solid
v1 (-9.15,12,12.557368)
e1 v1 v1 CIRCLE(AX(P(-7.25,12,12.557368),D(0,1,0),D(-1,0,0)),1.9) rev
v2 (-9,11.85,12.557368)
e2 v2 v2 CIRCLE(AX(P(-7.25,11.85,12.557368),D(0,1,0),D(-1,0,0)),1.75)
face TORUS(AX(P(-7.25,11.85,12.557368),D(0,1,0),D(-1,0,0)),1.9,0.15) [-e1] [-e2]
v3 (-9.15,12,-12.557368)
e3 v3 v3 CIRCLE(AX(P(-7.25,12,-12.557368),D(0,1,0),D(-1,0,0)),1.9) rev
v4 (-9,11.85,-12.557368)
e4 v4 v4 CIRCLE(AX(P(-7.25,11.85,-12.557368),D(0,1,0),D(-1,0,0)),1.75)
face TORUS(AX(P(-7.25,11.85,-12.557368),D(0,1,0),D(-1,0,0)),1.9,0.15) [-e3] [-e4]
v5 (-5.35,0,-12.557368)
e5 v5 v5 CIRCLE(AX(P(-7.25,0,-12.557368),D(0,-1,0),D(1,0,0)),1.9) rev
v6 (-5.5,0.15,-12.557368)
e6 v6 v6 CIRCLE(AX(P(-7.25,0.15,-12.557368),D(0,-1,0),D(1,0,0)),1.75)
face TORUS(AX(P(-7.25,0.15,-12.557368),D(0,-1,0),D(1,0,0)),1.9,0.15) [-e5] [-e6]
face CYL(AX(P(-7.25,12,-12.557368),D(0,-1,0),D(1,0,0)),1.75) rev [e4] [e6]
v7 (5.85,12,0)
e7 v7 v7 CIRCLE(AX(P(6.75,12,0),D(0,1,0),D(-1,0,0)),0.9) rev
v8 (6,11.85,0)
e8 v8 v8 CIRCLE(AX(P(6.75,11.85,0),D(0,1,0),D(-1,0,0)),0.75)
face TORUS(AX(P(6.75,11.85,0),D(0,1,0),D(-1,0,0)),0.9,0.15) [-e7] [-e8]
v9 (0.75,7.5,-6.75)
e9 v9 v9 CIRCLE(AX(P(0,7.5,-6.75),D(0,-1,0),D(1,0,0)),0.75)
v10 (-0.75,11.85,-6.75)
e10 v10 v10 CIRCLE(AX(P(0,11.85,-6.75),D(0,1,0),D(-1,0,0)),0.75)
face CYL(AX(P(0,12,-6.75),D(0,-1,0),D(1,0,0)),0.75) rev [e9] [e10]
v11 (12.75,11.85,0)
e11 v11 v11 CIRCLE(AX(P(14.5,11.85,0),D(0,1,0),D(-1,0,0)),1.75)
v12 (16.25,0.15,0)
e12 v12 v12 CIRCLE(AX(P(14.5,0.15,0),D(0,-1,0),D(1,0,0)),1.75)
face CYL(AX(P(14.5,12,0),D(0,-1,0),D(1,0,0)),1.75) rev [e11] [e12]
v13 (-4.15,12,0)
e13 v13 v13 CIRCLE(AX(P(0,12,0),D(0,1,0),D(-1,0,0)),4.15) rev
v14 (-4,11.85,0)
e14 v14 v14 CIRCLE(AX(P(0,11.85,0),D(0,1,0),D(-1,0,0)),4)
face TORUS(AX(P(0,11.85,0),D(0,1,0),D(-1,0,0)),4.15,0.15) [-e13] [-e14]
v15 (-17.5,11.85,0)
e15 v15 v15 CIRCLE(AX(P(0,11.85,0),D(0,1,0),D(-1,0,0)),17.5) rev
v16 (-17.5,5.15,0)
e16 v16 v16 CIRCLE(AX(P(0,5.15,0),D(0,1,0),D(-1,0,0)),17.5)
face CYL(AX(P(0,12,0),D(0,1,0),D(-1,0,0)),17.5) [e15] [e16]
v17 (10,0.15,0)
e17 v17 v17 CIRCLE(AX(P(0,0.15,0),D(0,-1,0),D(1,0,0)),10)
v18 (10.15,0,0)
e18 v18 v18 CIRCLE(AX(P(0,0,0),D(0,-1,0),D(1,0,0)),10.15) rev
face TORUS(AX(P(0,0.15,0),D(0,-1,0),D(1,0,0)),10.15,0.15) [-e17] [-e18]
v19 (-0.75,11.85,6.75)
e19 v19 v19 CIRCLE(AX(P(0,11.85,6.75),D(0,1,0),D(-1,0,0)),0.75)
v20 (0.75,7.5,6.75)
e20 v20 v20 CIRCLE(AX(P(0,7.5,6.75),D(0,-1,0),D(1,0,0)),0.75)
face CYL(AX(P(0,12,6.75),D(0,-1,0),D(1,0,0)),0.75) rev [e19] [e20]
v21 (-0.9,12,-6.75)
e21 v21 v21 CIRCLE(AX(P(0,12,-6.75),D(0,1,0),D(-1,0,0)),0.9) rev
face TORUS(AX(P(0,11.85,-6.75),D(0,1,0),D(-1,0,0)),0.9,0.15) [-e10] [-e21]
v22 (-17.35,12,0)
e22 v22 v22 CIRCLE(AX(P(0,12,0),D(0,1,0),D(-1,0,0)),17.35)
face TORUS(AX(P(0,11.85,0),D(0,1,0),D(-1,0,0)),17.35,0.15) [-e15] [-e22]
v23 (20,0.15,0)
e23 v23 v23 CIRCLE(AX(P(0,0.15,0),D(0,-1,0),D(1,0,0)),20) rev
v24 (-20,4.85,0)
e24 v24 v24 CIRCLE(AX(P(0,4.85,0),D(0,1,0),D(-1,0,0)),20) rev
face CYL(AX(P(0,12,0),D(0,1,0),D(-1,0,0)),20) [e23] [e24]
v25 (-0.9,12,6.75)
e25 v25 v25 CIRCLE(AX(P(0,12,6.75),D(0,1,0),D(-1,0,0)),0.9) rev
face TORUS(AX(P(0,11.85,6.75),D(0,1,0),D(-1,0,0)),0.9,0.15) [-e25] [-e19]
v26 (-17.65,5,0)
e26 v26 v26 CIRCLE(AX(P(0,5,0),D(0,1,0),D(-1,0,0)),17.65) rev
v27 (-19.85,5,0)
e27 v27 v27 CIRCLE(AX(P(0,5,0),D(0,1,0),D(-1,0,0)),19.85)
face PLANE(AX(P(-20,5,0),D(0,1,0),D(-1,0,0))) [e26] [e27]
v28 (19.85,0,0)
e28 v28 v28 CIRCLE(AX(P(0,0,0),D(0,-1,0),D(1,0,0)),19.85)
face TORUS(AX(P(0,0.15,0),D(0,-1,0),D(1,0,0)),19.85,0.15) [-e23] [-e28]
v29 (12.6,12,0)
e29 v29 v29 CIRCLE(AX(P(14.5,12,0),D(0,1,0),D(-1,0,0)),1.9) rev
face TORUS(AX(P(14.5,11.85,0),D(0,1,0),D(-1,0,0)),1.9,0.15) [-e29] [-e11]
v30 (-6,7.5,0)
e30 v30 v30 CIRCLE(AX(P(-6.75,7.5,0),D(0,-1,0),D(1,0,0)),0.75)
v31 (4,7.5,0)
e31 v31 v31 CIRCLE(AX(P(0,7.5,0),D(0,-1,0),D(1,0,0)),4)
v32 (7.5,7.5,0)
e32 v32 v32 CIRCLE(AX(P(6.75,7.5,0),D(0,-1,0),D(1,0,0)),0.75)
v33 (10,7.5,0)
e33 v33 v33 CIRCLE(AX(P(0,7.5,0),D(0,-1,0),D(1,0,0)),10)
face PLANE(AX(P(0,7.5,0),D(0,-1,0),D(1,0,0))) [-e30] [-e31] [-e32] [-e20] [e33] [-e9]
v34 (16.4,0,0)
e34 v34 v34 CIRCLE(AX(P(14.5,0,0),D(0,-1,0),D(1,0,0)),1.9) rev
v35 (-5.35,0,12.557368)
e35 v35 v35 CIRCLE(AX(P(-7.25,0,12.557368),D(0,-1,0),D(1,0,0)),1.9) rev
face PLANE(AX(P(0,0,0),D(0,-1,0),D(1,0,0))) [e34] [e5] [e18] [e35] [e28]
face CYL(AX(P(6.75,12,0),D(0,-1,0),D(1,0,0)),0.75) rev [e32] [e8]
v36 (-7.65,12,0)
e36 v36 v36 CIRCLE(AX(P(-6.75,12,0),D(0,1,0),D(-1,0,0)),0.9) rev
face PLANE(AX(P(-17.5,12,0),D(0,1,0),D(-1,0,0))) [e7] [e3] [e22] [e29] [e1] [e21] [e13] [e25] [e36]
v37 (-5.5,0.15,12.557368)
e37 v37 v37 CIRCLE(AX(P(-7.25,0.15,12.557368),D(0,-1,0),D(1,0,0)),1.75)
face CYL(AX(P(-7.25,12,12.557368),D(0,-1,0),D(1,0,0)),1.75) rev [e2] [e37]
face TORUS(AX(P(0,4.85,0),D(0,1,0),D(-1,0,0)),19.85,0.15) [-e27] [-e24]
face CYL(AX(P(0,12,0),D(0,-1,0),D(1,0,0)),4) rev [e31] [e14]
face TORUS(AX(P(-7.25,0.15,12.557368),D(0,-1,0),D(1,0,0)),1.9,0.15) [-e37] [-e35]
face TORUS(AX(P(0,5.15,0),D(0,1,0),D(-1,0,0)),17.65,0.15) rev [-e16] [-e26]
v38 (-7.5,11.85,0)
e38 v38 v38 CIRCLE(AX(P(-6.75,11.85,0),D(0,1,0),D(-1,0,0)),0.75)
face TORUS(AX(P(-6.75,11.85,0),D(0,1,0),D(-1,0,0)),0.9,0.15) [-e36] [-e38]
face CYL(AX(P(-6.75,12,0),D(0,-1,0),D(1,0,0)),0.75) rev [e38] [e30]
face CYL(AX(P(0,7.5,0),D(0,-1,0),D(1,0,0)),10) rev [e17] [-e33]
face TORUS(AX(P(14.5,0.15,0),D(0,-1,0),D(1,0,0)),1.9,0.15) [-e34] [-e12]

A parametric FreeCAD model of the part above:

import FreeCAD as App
import Part
import Sketcher
Q = App.Units.Quantity


def edges_at(feature, points):
    """Names of the edges that pass closest to the given points."""
    edges = feature.Shape.Edges
    near = lambda p: min(range(len(edges)), key=lambda i: edges[i].distToShape(Part.Vertex(*p))[0])
    return sorted({f"Edge{near(p) + 1}" for p in points})

doc = App.newDocument("Part")
body = doc.addObject("PartDesign::Body", "Body")

# Sketch on XY plane
sketch1 = body.newObject("Sketcher::SketchObject", "Sketch")
sketch1.AttachmentSupport = (doc.getObject("XY_Plane"), [""])
sketch1.MapMode = "FlatFace"
sketch1.addGeometry([
    Part.LineSegment(App.Vector(-20, 0, 0), App.Vector(0, 0, 0)),  # 0
    Part.LineSegment(App.Vector(0, 0, 0), App.Vector(0, 12, 0)),  # 1
    Part.LineSegment(App.Vector(0, 12, 0), App.Vector(-17.5, 12, 0)),  # 2
    Part.LineSegment(App.Vector(-17.5, 12, 0), App.Vector(-17.5, 5, 0)),  # 3
    Part.LineSegment(App.Vector(-17.5, 5, 0), App.Vector(-20, 5, 0)),  # 4
    Part.LineSegment(App.Vector(-20, 5, 0), App.Vector(-20, 0, 0)),  # 5
], False)
sketch1.addConstraint([
    Sketcher.Constraint("Coincident", 0, 2, 1, 1),
    Sketcher.Constraint("Coincident", 1, 2, 2, 1),
    Sketcher.Constraint("Coincident", 2, 2, 3, 1),
    Sketcher.Constraint("Coincident", 3, 2, 4, 1),
    Sketcher.Constraint("Coincident", 4, 2, 5, 1),
    Sketcher.Constraint("Coincident", 5, 2, 0, 1),
    Sketcher.Constraint("Horizontal", 0),
    Sketcher.Constraint("Vertical", 1),
    Sketcher.Constraint("Horizontal", 2),
    Sketcher.Constraint("Vertical", 3),
    Sketcher.Constraint("Horizontal", 4),
    Sketcher.Constraint("Vertical", 5),
    Sketcher.Constraint("Coincident", 0, 2, -1, 1),
    Sketcher.Constraint("DistanceX", 0, 1, 0, 2, Q("20 mm")),
    Sketcher.Constraint("DistanceY", 1, 1, 1, 2, Q("12 mm")),
    Sketcher.Constraint("DistanceY", 3, 2, 3, 1, Q("7 mm")),
    Sketcher.Constraint("DistanceX", 2, 2, 2, 1, Q("17.5 mm")),
])
revolution = body.newObject("PartDesign::Revolution", "Revolution")
revolution.Profile = sketch1
revolution.ReferenceAxis = (sketch1, ["V_Axis"])
revolution.Angle = 360

# Sketch on XZ plane
sketch2 = body.newObject("Sketcher::SketchObject", "Sketch001")
sketch2.AttachmentSupport = (doc.getObject("XZ_Plane"), [""])
sketch2.MapMode = "FlatFace"
sketch2.addGeometry([
    Part.Circle(App.Vector(0, 0, 0), App.Vector(0, 0, 1), 4),  # 0
    Part.Circle(App.Vector(-7.2, -12.6, 0), App.Vector(0, 0, 1), 1.8),  # 1
    Part.Circle(App.Vector(0, -6.8, 0), App.Vector(0, 0, 1), 0.8),  # 2
    Part.Circle(App.Vector(6.8, 0, 0), App.Vector(0, 0, 1), 0.8),  # 3
    Part.Circle(App.Vector(-6.8, 0, 0), App.Vector(0, 0, 1), 0.8),  # 4
    Part.Circle(App.Vector(0, 6.8, 0), App.Vector(0, 0, 1), 0.8),  # 5
    Part.Circle(App.Vector(14.5, 0, 0), App.Vector(0, 0, 1), 1.8),  # 6
    Part.Circle(App.Vector(-7.2, 12.6, 0), App.Vector(0, 0, 1), 1.8),  # 7
], False)
sketch2.addConstraint([
    Sketcher.Constraint("Coincident", 0, 3, -1, 1),
    Sketcher.Constraint("Equal", 2, 3),
    Sketcher.Constraint("Equal", 3, 4),
    Sketcher.Constraint("Equal", 4, 5),
    Sketcher.Constraint("Equal", 1, 6),
    Sketcher.Constraint("Equal", 6, 7),
    Sketcher.Constraint("Symmetric", 3, 3, 4, 3, -1, 1),
    Sketcher.Constraint("Symmetric", 2, 3, 5, 3, -1, 1),
    Sketcher.Constraint("Symmetric", 1, 3, 7, 3, -1),
    Sketcher.Constraint("PointOnObject", 2, 3, -2),
    Sketcher.Constraint("PointOnObject", 3, 3, -1),
    Sketcher.Constraint("PointOnObject", 6, 3, -1),
    Sketcher.Constraint("Diameter", 0, Q("8 mm")),
    Sketcher.Constraint("Diameter", 1, Q("3.5 mm")),
    Sketcher.Constraint("Diameter", 2, Q("1.5 mm")),
    Sketcher.Constraint("DistanceX", 1, 3, 3, 3, Q("14 mm")),
    Sketcher.Constraint("DistanceX", -1, 1, 6, 3, Q("14.5 mm")),
    Sketcher.Constraint("DistanceX", 1, 3, 4, 3, Q("0.5 mm")),
    Sketcher.Constraint("DistanceY", 2, 3, 5, 3, Q("13.5 mm")),
    Sketcher.Constraint("DistanceY", 1, 3, -1, 1, Q("12.557368 mm")),
])
pocket1 = body.newObject("PartDesign::Pocket", "Pocket")
pocket1.Profile = sketch2
pocket1.Type = "ThroughAll"

# Sketch on XZ plane
sketch3 = body.newObject("Sketcher::SketchObject", "Sketch002")
sketch3.AttachmentSupport = (doc.getObject("XZ_Plane"), [""])
sketch3.MapMode = "FlatFace"
sketch3.addGeometry([
    Part.Circle(App.Vector(0, 0, 0), App.Vector(0, 0, 1), 10),  # 0
    Part.Circle(App.Vector(0, -6.8, 0), App.Vector(0, 0, 1), 0.8),  # 1
    Part.Circle(App.Vector(-6.8, 0, 0), App.Vector(0, 0, 1), 0.8),  # 2
    Part.Circle(App.Vector(0, 0, 0), App.Vector(0, 0, 1), 4),  # 3
    Part.Circle(App.Vector(6.8, 0, 0), App.Vector(0, 0, 1), 0.8),  # 4
    Part.Circle(App.Vector(0, 6.8, 0), App.Vector(0, 0, 1), 0.8),  # 5
    Part.Circle(App.Vector(14.5, 0, 0), App.Vector(0, 0, 1), 1.8),  # 6
    Part.Circle(App.Vector(-7.2, -12.6, 0), App.Vector(0, 0, 1), 1.8),  # 7
    Part.Circle(App.Vector(-7.2, 12.6, 0), App.Vector(0, 0, 1), 1.8),  # 8
], False)
sketch3.addConstraint([
    Sketcher.Constraint("Coincident", 0, 3, -1, 1),
    Sketcher.Constraint("Coincident", 3, 3, -1, 1),
    Sketcher.Constraint("Equal", 1, 2),
    Sketcher.Constraint("Equal", 2, 4),
    Sketcher.Constraint("Equal", 4, 5),
    Sketcher.Constraint("Equal", 6, 7),
    Sketcher.Constraint("Equal", 7, 8),
    Sketcher.Constraint("Symmetric", 2, 3, 4, 3, -1, 1),
    Sketcher.Constraint("Symmetric", 1, 3, 5, 3, -1, 1),
    Sketcher.Constraint("Symmetric", 7, 3, 8, 3, -1),
    Sketcher.Constraint("PointOnObject", 1, 3, -2),
    Sketcher.Constraint("PointOnObject", 2, 3, -1),
    Sketcher.Constraint("PointOnObject", 6, 3, -1),
    Sketcher.Constraint("Diameter", 0, Q("20 mm")),
    Sketcher.Constraint("Diameter", 3, Q("8 mm")),
    Sketcher.Constraint("Diameter", 1, Q("1.5 mm")),
    Sketcher.Constraint("Diameter", 6, Q("3.5 mm")),
    Sketcher.Constraint("DistanceX", 7, 3, 4, 3, Q("14 mm")),
    Sketcher.Constraint("DistanceX", -1, 1, 6, 3, Q("14.5 mm")),
    Sketcher.Constraint("DistanceX", 2, 3, 4, 3, Q("13.5 mm")),
    Sketcher.Constraint("DistanceY", 1, 3, 5, 3, Q("13.5 mm")),
    Sketcher.Constraint("DistanceY", 7, 3, -1, 1, Q("12.557368 mm")),
])
pocket2 = body.newObject("PartDesign::Pocket", "Pocket001")
pocket2.Profile = sketch3
pocket2.Length = 7.5
doc.recompute()

fillet = body.newObject("PartDesign::Fillet", "Fillet")
fillet.Base = (pocket2, edges_at(pocket2, [
    (-9, 12, -12.557),
    (-9, 0, -12.557),
    (-0.75, 12, -6.75),
    (6, 12, 0),
    (-7.5, 12, 0),
    (-0.75, 12, 6.75),
    (12.75, 12, 0),
    (12.75, 0, 0),
    (-9, 12, 12.557),
    (-9, 0, 12.557),
    (-4, 12, 0),
    (17.5, 12, 0),
    (17.5, 5, 0),
    (20, 5, 0),
    (-10, 0, 0),
    (20, 0, 0),
]))
fillet.Radius = 0.15

doc.recompute()
